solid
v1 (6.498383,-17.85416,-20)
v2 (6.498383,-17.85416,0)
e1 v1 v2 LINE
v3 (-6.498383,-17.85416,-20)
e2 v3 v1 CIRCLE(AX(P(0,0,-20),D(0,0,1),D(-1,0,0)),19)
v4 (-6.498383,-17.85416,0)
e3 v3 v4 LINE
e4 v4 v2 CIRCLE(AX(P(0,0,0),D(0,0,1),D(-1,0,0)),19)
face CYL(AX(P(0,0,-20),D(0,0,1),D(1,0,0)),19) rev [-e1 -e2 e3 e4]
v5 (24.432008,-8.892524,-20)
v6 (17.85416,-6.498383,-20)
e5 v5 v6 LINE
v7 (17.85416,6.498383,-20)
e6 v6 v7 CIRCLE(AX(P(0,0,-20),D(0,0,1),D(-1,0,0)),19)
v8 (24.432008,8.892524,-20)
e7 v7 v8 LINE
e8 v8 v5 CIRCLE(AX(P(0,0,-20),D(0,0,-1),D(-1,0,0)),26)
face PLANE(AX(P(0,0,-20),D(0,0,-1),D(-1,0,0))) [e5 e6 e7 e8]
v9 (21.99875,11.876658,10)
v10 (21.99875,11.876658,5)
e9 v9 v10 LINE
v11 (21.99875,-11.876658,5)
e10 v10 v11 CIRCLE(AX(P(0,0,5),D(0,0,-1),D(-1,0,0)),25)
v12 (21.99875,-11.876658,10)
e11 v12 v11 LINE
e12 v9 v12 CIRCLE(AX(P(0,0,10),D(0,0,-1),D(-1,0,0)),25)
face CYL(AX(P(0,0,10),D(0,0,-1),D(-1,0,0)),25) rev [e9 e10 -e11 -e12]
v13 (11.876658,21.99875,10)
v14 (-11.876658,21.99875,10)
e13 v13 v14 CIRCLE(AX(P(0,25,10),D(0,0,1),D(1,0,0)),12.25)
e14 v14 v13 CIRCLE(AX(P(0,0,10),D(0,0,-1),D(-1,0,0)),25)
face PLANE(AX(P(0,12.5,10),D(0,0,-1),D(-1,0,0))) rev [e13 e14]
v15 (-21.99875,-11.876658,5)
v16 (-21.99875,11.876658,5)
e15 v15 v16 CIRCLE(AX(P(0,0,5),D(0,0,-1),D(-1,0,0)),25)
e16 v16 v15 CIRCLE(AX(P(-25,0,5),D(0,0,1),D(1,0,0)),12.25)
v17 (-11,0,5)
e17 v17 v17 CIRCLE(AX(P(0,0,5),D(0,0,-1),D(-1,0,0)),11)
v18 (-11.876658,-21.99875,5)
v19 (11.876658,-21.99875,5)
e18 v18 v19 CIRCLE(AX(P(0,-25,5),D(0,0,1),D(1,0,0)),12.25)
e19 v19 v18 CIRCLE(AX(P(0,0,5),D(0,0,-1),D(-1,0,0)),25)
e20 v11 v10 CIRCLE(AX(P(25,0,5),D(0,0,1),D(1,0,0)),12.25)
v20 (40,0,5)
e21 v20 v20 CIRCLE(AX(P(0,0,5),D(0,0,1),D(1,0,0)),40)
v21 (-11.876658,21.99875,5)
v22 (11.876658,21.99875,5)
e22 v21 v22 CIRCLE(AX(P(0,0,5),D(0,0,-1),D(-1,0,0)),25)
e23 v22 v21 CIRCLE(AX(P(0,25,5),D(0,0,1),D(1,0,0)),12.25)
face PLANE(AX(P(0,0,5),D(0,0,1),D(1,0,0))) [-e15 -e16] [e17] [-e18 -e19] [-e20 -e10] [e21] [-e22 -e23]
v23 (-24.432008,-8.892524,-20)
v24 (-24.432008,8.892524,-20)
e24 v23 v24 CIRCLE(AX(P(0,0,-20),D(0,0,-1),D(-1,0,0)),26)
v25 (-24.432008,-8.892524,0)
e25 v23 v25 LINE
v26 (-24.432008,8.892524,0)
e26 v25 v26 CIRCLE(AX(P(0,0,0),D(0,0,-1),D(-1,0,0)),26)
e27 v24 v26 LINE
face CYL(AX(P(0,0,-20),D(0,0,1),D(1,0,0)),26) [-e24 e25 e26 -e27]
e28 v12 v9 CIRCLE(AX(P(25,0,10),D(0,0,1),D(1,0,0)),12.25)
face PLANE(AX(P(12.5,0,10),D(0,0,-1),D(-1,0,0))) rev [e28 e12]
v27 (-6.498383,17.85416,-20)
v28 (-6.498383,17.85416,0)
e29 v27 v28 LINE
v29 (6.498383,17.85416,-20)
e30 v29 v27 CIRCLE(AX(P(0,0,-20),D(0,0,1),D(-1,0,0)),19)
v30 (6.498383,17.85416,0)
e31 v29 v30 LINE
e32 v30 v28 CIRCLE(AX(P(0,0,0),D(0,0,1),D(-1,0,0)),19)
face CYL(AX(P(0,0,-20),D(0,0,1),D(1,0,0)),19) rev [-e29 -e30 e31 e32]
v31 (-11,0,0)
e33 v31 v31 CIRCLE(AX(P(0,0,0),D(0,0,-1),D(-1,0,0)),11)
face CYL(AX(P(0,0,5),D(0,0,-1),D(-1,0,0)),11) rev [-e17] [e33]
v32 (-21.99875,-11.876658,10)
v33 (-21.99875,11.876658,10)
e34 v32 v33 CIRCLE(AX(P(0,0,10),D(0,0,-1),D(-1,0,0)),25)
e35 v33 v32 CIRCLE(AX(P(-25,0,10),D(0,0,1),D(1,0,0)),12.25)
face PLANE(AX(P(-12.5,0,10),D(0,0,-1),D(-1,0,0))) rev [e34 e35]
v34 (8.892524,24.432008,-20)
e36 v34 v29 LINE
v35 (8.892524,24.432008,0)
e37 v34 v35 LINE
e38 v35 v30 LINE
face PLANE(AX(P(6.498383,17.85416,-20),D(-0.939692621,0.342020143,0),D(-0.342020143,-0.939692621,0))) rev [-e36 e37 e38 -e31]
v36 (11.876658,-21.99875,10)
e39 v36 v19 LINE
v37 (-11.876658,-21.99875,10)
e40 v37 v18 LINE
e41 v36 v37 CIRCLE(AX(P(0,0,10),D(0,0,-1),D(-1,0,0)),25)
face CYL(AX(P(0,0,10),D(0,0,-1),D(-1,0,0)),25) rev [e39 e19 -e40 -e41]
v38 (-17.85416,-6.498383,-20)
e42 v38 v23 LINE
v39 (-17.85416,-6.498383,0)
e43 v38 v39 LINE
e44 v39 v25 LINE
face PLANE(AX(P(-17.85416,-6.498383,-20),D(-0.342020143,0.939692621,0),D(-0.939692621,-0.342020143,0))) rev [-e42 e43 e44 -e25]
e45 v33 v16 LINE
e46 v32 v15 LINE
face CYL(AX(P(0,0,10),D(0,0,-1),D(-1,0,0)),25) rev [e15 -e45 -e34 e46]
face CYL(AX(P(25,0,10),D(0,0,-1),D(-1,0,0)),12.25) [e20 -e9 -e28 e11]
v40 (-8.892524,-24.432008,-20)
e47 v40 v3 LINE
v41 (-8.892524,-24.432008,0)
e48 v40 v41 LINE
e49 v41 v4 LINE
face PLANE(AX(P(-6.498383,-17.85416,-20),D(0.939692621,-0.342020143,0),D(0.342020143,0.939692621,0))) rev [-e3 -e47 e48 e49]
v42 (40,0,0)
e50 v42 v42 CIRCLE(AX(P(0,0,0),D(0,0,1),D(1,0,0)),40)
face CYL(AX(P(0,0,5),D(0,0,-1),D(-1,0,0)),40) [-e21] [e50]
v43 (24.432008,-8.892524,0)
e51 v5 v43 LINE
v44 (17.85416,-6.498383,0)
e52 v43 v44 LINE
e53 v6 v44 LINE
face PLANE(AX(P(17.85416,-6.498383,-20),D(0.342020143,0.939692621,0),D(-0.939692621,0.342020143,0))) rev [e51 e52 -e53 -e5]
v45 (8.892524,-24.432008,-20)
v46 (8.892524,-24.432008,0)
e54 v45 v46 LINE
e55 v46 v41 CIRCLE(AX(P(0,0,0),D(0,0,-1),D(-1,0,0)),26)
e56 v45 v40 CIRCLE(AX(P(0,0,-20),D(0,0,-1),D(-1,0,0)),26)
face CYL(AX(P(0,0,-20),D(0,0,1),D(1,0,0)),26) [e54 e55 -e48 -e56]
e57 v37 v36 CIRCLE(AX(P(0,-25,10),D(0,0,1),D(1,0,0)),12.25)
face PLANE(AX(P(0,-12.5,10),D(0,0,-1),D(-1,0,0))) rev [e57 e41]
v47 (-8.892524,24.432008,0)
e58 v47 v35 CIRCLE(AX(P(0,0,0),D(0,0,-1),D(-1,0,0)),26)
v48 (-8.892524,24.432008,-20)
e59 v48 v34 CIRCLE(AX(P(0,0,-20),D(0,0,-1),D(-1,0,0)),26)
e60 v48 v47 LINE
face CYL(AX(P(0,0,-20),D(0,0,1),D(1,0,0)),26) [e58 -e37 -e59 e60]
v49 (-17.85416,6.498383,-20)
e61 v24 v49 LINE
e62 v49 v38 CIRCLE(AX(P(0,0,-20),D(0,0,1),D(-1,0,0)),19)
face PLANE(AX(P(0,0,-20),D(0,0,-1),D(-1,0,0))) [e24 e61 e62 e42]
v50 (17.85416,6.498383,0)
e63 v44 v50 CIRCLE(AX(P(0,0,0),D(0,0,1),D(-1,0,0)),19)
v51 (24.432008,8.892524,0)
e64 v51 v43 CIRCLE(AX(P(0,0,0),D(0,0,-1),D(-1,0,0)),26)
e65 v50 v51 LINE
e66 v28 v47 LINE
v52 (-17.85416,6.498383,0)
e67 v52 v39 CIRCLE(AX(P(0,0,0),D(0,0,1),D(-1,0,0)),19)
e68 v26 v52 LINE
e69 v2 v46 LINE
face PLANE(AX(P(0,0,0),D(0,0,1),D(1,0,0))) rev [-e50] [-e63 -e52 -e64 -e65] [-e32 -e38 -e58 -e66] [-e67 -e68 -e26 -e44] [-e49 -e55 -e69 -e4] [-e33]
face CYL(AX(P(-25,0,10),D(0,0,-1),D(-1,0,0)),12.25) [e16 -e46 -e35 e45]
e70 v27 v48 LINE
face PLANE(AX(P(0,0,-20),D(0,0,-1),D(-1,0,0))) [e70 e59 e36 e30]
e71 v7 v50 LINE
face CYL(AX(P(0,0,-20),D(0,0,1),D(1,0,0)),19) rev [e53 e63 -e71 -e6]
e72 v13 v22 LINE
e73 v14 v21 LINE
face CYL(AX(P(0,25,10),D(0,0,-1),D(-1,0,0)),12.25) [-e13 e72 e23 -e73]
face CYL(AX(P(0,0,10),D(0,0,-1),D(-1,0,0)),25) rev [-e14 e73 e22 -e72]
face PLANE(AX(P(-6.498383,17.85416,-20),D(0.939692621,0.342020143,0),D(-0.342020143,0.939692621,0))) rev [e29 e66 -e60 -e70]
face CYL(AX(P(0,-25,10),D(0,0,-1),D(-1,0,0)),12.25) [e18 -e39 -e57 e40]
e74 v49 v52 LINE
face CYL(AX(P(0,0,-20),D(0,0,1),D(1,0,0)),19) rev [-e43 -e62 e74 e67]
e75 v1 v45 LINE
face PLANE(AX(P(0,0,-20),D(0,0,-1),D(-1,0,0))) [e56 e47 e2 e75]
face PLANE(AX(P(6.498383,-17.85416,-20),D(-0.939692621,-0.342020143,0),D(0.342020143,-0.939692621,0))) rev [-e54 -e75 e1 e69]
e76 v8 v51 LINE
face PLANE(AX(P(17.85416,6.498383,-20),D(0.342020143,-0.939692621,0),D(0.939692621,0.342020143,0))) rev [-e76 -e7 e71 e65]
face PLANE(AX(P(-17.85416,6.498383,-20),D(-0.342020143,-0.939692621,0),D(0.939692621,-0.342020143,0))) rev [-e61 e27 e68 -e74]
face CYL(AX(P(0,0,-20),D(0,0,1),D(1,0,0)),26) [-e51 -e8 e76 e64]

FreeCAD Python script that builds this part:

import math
import FreeCAD as App
import Part
import Sketcher
Q = App.Units.Quantity

doc = App.newDocument("Part")
body = doc.addObject("PartDesign::Body", "Body")

# Sketch on XY plane
sketch1 = body.newObject("Sketcher::SketchObject", "Sketch")
sketch1.AttachmentSupport = (doc.getObject("XY_Plane"), [""])
sketch1.MapMode = "FlatFace"
sketch1.addGeometry(Part.Circle(App.Vector(0, 0, 0), App.Vector(0, 0, 1), 40), False)
sketch1.addConstraint(Sketcher.Constraint("Coincident", 0, 3, -1, 1))
sketch1.addConstraint(Sketcher.Constraint("Diameter", 0, Q("80 mm")))
pad1 = body.newObject("PartDesign::Pad", "Pad")
pad1.Profile = sketch1
pad1.Length = 5

# Sketch on XY plane
sketch2 = body.newObject("Sketcher::SketchObject", "Sketch001")
sketch2.AttachmentSupport = (doc.getObject("XY_Plane"), [""])
sketch2.MapMode = "FlatFace"
sketch2.addGeometry(Part.LineSegment(App.Vector(9, 24, 0), App.Vector(6, 18, 0)), False)
sketch2.addGeometry(Part.ArcOfCircle(Part.Circle(App.Vector(0, 0, 0), App.Vector(0, 0, 1), 19), math.radians(70), math.radians(110)), False)
sketch2.addGeometry(Part.LineSegment(App.Vector(-6, 18, 0), App.Vector(-9, 24, 0)), False)
sketch2.addGeometry(Part.ArcOfCircle(Part.Circle(App.Vector(0, 0, 0), App.Vector(0, 0, 1), 26), math.radians(70), math.radians(110)), False)
sketch2.addGeometry(Part.LineSegment(App.Vector(-24, 9, 0), App.Vector(-18, 6, 0)), False)
sketch2.addGeometry(Part.ArcOfCircle(Part.Circle(App.Vector(0, 0, 0), App.Vector(0, 0, 1), 19), math.radians(160), math.radians(200)), False)
sketch2.addGeometry(Part.LineSegment(App.Vector(-18, -6, 0), App.Vector(-24, -9, 0)), False)
sketch2.addGeometry(Part.ArcOfCircle(Part.Circle(App.Vector(0, 0, 0), App.Vector(0, 0, 1), 26), math.radians(160), math.radians(200)), False)
sketch2.addGeometry(Part.LineSegment(App.Vector(-9, -24, 0), App.Vector(-6, -18, 0)), False)
sketch2.addGeometry(Part.ArcOfCircle(Part.Circle(App.Vector(0, 0, 0), App.Vector(0, 0, 1), 19), math.radians(-110), math.radians(-70)), False)
sketch2.addGeometry(Part.LineSegment(App.Vector(6, -18, 0), App.Vector(9, -24, 0)), False)
sketch2.addGeometry(Part.ArcOfCircle(Part.Circle(App.Vector(0, 0, 0), App.Vector(0, 0, 1), 26), math.radians(-110), math.radians(-70)), False)
sketch2.addGeometry(Part.LineSegment(App.Vector(24, -9, 0), App.Vector(18, -6, 0)), False)
sketch2.addGeometry(Part.ArcOfCircle(Part.Circle(App.Vector(0, 0, 0), App.Vector(0, 0, 1), 19), math.radians(-20), math.radians(20)), False)
sketch2.addGeometry(Part.LineSegment(App.Vector(18, 6, 0), App.Vector(24, 9, 0)), False)
sketch2.addGeometry(Part.ArcOfCircle(Part.Circle(App.Vector(0, 0, 0), App.Vector(0, 0, 1), 26), math.radians(-20), math.radians(20)), False)
sketch2.addConstraint(Sketcher.Constraint("Coincident", 0, 2, 1, 1))
sketch2.addConstraint(Sketcher.Constraint("Coincident", 1, 2, 2, 1))
sketch2.addConstraint(Sketcher.Constraint("Coincident", 2, 2, 3, 2))
sketch2.addConstraint(Sketcher.Constraint("Coincident", 3, 1, 0, 1))
sketch2.addConstraint(Sketcher.Constraint("Coincident", 4, 2, 5, 1))
sketch2.addConstraint(Sketcher.Constraint("Coincident", 5, 2, 6, 1))
sketch2.addConstraint(Sketcher.Constraint("Coincident", 6, 2, 7, 2))
sketch2.addConstraint(Sketcher.Constraint("Coincident", 7, 1, 4, 1))
sketch2.addConstraint(Sketcher.Constraint("Coincident", 8, 2, 9, 1))
sketch2.addConstraint(Sketcher.Constraint("Coincident", 9, 2, 10, 1))
sketch2.addConstraint(Sketcher.Constraint("Coincident", 10, 2, 11, 2))
sketch2.addConstraint(Sketcher.Constraint("Coincident", 11, 1, 8, 1))
sketch2.addConstraint(Sketcher.Constraint("Coincident", 12, 2, 13, 1))
sketch2.addConstraint(Sketcher.Constraint("Coincident", 13, 2, 14, 1))
sketch2.addConstraint(Sketcher.Constraint("Coincident", 14, 2, 15, 2))
sketch2.addConstraint(Sketcher.Constraint("Coincident", 15, 1, 12, 1))
sketch2.addConstraint(Sketcher.Constraint("Coincident", 1, 3, -1, 1))
sketch2.addConstraint(Sketcher.Constraint("Coincident", 3, 3, -1, 1))
sketch2.addConstraint(Sketcher.Constraint("Coincident", 5, 3, -1, 1))
sketch2.addConstraint(Sketcher.Constraint("Coincident", 7, 3, -1, 1))
sketch2.addConstraint(Sketcher.Constraint("Coincident", 9, 3, -1, 1))
sketch2.addConstraint(Sketcher.Constraint("Coincident", 11, 3, -1, 1))
sketch2.addConstraint(Sketcher.Constraint("Coincident", 13, 3, -1, 1))
sketch2.addConstraint(Sketcher.Constraint("Coincident", 15, 3, -1, 1))
sketch2.addConstraint(Sketcher.Constraint("Equal", 1, 5))
sketch2.addConstraint(Sketcher.Constraint("Equal", 3, 7))
sketch2.addConstraint(Sketcher.Constraint("Equal", 5, 9))
sketch2.addConstraint(Sketcher.Constraint("Equal", 7, 11))
sketch2.addConstraint(Sketcher.Constraint("Equal", 9, 13))
sketch2.addConstraint(Sketcher.Constraint("Equal", 11, 15))
sketch2.addConstraint(Sketcher.Constraint("Perpendicular", 0, 4))
sketch2.addConstraint(Sketcher.Constraint("Perpendicular", 2, 6))
sketch2.addConstraint(Sketcher.Constraint("Perpendicular", 4, 8))
sketch2.addConstraint(Sketcher.Constraint("Perpendicular", 6, 10))
sketch2.addConstraint(Sketcher.Constraint("Perpendicular", 8, 12))
sketch2.addConstraint(Sketcher.Constraint("Perpendicular", 10, 14))
sketch2.addConstraint(Sketcher.Constraint("Horizontal", 0, 2, 1, 2))
sketch2.addConstraint(Sketcher.Constraint("Horizontal", 2, 2, 3, 1))
sketch2.addConstraint(Sketcher.Constraint("Horizontal", 8, 2, 9, 2))
sketch2.addConstraint(Sketcher.Constraint("Horizontal", 5, 2, 12, 2))
sketch2.addConstraint(Sketcher.Constraint("Horizontal", 4, 2, 13, 2))
sketch2.addConstraint(Sketcher.Constraint("Vertical", 4, 2, 5, 2))
sketch2.addConstraint(Sketcher.Constraint("Vertical", 1, 2, 8, 2))
sketch2.addConstraint(Sketcher.Constraint("Radius", 1, Q("19 mm")))
sketch2.addConstraint(Sketcher.Constraint("Radius", 3, Q("26 mm")))
sketch2.addConstraint(Sketcher.Constraint("Angle", 0, Q("-110 deg")))
sketch2.addConstraint(Sketcher.Constraint("DistanceY", -1, 1, 0, 2, Q("17.85416 mm")))
sketch2.addConstraint(Sketcher.Constraint("DistanceX", 4, 2, -1, 1, Q("17.85416 mm")))
pad2 = body.newObject("PartDesign::Pad", "Pad001")
pad2.Profile = sketch2
pad2.Length = 20
pad2.Reversed = True

# Sketch on XY plane
sketch3 = body.newObject("Sketcher::SketchObject", "Sketch002")
sketch3.AttachmentSupport = (doc.getObject("XY_Plane"), [""])
sketch3.MapMode = "FlatFace"
sketch3.addGeometry(Part.Circle(App.Vector(0, 0, 0), App.Vector(0, 0, 1), 11), False)
sketch3.addConstraint(Sketcher.Constraint("Coincident", 0, 3, -1, 1))
sketch3.addConstraint(Sketcher.Constraint("Diameter", 0, Q("22 mm")))
pocket1 = body.newObject("PartDesign::Pocket", "Pocket")
pocket1.Profile = sketch3
pocket1.Length = 5
pocket1.Reversed = True

# Sketch on XY plane
sketch4 = body.newObject("Sketcher::SketchObject", "Sketch003")
sketch4.AttachmentSupport = (doc.getObject("XY_Plane"), [""])
sketch4.MapMode = "FlatFace"
sketch4.AttachmentOffset = App.Placement(App.Vector(0, 0, 5), App.Rotation())
sketch4.addGeometry(Part.ArcOfCircle(Part.Circle(App.Vector(0, 25, 0), App.Vector(0, 0, 1), 12), math.radians(-14), math.radians(194)), False)
sketch4.addGeometry(Part.ArcOfCircle(Part.Circle(App.Vector(0, 0, 0), App.Vector(0, 0, 1), 25), math.radians(62), math.radians(118)), False)
sketch4.addGeometry(Part.ArcOfCircle(Part.Circle(App.Vector(25, 0, 0), App.Vector(0, 0, 1), 12), math.radians(-104), math.radians(104)), False)
sketch4.addGeometry(Part.ArcOfCircle(Part.Circle(App.Vector(0, 0, 0), App.Vector(0, 0, 1), 25), math.radians(-28), math.radians(28)), False)
sketch4.addGeometry(Part.ArcOfCircle(Part.Circle(App.Vector(0, -25, 0), App.Vector(0, 0, 1), 12), math.radians(166), math.radians(374)), False)
sketch4.addGeometry(Part.ArcOfCircle(Part.Circle(App.Vector(0, 0, 0), App.Vector(0, 0, 1), 25), math.radians(-118), math.radians(-62)), False)
sketch4.addGeometry(Part.ArcOfCircle(Part.Circle(App.Vector(-25, 0, 0), App.Vector(0, 0, 1), 12), math.radians(76), math.radians(284)), False)
sketch4.addGeometry(Part.ArcOfCircle(Part.Circle(App.Vector(0, 0, 0), App.Vector(0, 0, 1), 25), math.radians(152), math.radians(208)), False)
sketch4.addConstraint(Sketcher.Constraint("Coincident", 0, 1, 1, 1))
sketch4.addConstraint(Sketcher.Constraint("Coincident", 1, 2, 0, 2))
sketch4.addConstraint(Sketcher.Constraint("Coincident", 2, 1, 3, 1))
sketch4.addConstraint(Sketcher.Constraint("Coincident", 3, 2, 2, 2))
sketch4.addConstraint(Sketcher.Constraint("Coincident", 4, 1, 5, 1))
sketch4.addConstraint(Sketcher.Constraint("Coincident", 5, 2, 4, 2))
sketch4.addConstraint(Sketcher.Constraint("Coincident", 6, 1, 7, 1))
sketch4.addConstraint(Sketcher.Constraint("Coincident", 7, 2, 6, 2))
sketch4.addConstraint(Sketcher.Constraint("Coincident", 1, 3, -1, 1))
sketch4.addConstraint(Sketcher.Constraint("Coincident", 3, 3, -1, 1))
sketch4.addConstraint(Sketcher.Constraint("Coincident", 5, 3, -1, 1))
sketch4.addConstraint(Sketcher.Constraint("Coincident", 7, 3, -1, 1))
sketch4.addConstraint(Sketcher.Constraint("Equal", 0, 2))
sketch4.addConstraint(Sketcher.Constraint("Equal", 1, 3))
sketch4.addConstraint(Sketcher.Constraint("Equal", 2, 4))
sketch4.addConstraint(Sketcher.Constraint("Equal", 3, 5))
sketch4.addConstraint(Sketcher.Constraint("Equal", 4, 6))
sketch4.addConstraint(Sketcher.Constraint("Equal", 5, 7))
sketch4.addConstraint(Sketcher.Constraint("Symmetric", 0, 3, 4, 3, -1, 1))
sketch4.addConstraint(Sketcher.Constraint("Symmetric", 2, 3, 6, 3, -1, 1))
sketch4.addConstraint(Sketcher.Constraint("PointOnObject", 0, 3, -2))
sketch4.addConstraint(Sketcher.Constraint("PointOnObject", 2, 3, -1))
sketch4.addConstraint(Sketcher.Constraint("Radius", 1, Q("25 mm")))
sketch4.addConstraint(Sketcher.Constraint("Radius", 0, Q("12.25 mm")))
sketch4.addConstraint(Sketcher.Constraint("DistanceY", -1, 1, 0, 3, Q("25 mm")))
sketch4.addConstraint(Sketcher.Constraint("DistanceX", -1, 1, 2, 3, Q("25 mm")))
pad3 = body.newObject("PartDesign::Pad", "Pad002")
pad3.Profile = sketch4
pad3.Length = 5

doc.recompute()
